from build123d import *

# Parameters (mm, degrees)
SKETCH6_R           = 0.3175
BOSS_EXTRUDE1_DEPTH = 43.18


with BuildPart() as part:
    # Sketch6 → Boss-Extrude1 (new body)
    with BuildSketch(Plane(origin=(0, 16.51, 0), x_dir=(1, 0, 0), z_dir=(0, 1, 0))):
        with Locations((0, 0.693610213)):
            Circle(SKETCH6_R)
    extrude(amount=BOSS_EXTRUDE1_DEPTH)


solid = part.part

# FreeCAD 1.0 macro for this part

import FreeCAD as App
import Part
import Sketcher
Q = App.Units.Quantity

doc = App.newDocument("Part")
body = doc.addObject("PartDesign::Body", "Body")

# Sketch on XZ plane
sketch1 = doc.addObject("Sketcher::SketchObject", "Sketch")
body.addObject(sketch1)
sketch1.AttachmentSupport = (doc.XZ_Plane, [""])
sketch1.MapMode = "FlatFace"
sketch1.AttachmentOffset = App.Placement(App.Vector(0, 0, -0.65 * 25.4), App.Rotation())
sketch1.addGeometry(Part.Circle(App.Vector(0, -0.69, 0), App.Vector(0, 0, 1), 0.32), False)
sketch1.addConstraint(Sketcher.Constraint("PointOnObject", 0, 3, -2))
sketch1.addConstraint(Sketcher.Constraint("Diameter", 0, Q("0.025 in")))
sketch1.addConstraint(Sketcher.Constraint("DistanceY", 0, 3, -1, 1, Q("0.69361 mm")))
pad1 = doc.addObject("PartDesign::Pad", "Pad")
body.addObject(pad1)
pad1.Profile = sketch1
pad1.Length = Q("1.7 in")
pad1.Reversed = True

doc.recompute()
